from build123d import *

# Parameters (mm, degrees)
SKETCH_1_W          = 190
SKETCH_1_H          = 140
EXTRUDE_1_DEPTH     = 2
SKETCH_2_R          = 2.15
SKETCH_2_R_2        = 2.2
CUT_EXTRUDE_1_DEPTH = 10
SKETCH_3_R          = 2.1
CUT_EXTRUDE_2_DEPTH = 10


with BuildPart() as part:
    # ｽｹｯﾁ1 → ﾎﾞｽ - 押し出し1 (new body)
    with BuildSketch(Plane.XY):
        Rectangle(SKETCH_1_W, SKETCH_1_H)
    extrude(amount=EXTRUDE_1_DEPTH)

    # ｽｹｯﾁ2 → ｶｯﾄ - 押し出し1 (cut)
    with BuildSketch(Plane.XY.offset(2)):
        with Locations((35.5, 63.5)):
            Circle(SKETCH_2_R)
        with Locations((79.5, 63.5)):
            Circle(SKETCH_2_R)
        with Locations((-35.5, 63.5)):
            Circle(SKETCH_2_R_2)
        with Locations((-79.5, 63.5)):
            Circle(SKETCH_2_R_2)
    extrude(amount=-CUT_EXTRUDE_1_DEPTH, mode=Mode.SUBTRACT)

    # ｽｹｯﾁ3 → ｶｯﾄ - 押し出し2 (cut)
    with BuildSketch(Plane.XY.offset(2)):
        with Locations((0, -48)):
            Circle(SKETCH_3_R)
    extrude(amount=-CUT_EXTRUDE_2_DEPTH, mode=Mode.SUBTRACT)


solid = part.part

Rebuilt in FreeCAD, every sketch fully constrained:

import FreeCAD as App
import Part
import Sketcher
from FreeCAD import Vector


def add_polygon(sketch, points):
    """Adds a closed chain of lines whose ends are joined by coincident constraints."""
    first, n = sketch.GeometryCount, len(points)
    for a, b in zip(points, points[1:] + points[:1]):
        sketch.addGeometry(Part.LineSegment(App.Vector(*a, 0), App.Vector(*b, 0)), False)
    for i in range(n):
        sketch.addConstraint(Sketcher.Constraint("Coincident", first + i, 2, first + (i + 1) % n, 1))

doc = App.newDocument("Part")
params = doc.addObject("Spreadsheet::Sheet", "Params")
for row, (alias, value) in enumerate([
    ("sketch1_width", "190 mm"),
    ("sketch1_height", "140 mm"),
    ("pad1_length", "2 mm"),
    ("sketch2_diameter", "4.3 mm"),
    ("sketch2_diameter2", "4.4 mm"),
    ("pocket1_length", "10 mm"),
    ("sketch3_diameter", "4.2 mm"),
    ("pocket2_length", "10 mm"),
], start=1):
    params.set(f"A{row}", alias)
    params.set(f"B{row}", "=" + value)
    params.setAlias(f"B{row}", alias)

body = doc.addObject("PartDesign::Body", "Body")

sketch1 = body.newObject("Sketcher::SketchObject", "Sketch")
sketch1.AttachmentSupport = (doc.getObject("XY_Plane"), [""])
sketch1.MapMode = "FlatFace"
add_polygon(sketch1, [(-95, 70), (-95, -70), (95, -70), (95, 70)])
sketch1.addConstraint([
    Sketcher.Constraint("Vertical", 0),
    Sketcher.Constraint("Horizontal", 1),
    Sketcher.Constraint("Vertical", 2),
    Sketcher.Constraint("Horizontal", 3),
    Sketcher.Constraint("Symmetric", 0, 2, 2, 2, -1, 1),
    Sketcher.Constraint("DistanceX", 1, 1, 1, 2, 190.0),
    Sketcher.Constraint("DistanceY", 0, 2, 0, 1, 140.0),
])
sketch1.setExpression("Constraints[9]", "Params.sketch1_width")
sketch1.setExpression("Constraints[10]", "Params.sketch1_height")
pad1 = body.newObject("PartDesign::Pad", "Pad")
pad1.Profile = sketch1
pad1.setExpression("Length", "Params.pad1_length")

sketch2 = body.newObject("Sketcher::SketchObject", "Sketch001")
sketch2.AttachmentSupport = (doc.getObject("XY_Plane"), [""])
sketch2.MapMode = "FlatFace"
sketch2.AttachmentOffset = App.Placement(Vector(0, 0, 2), App.Rotation())
sketch2.addGeometry([
    Part.Circle(Vector(35.5, 63.5, 0), Vector(0, 0, 1), 2.1),
    Part.Circle(Vector(79.5, 63.5, 0), Vector(0, 0, 1), 2.1),
    Part.Circle(Vector(-35.5, 63.5, 0), Vector(0, 0, 1), 2.2),
    Part.Circle(Vector(-79.5, 63.5, 0), Vector(0, 0, 1), 2.2),
], False)
sketch2.addConstraint([
    Sketcher.Constraint("Equal", 0, 1),
    Sketcher.Constraint("Equal", 2, 3),
    Sketcher.Constraint("Symmetric", 0, 3, 2, 3, -2),
    Sketcher.Constraint("Symmetric", 1, 3, 3, 3, -2),
    Sketcher.Constraint("Horizontal", 0, 3, 1, 3),
    Sketcher.Constraint("Diameter", 0, 4.3),
    Sketcher.Constraint("Diameter", 2, 4.4),
    Sketcher.Constraint("DistanceX", 0, 3, 1, 3, 44.0),
    Sketcher.Constraint("DistanceX", 2, 3, 0, 3, 71.0),
    Sketcher.Constraint("DistanceY", -1, 1, 0, 3, 63.5),
])
sketch2.setExpression("Constraints[5]", "Params.sketch2_diameter")
sketch2.setExpression("Constraints[6]", "Params.sketch2_diameter2")
pocket1 = body.newObject("PartDesign::Pocket", "Pocket")
pocket1.Profile = sketch2
pocket1.setExpression("Length", "Params.pocket1_length")

sketch3 = body.newObject("Sketcher::SketchObject", "Sketch002")
sketch3.AttachmentSupport = (doc.getObject("XY_Plane"), [""])
sketch3.MapMode = "FlatFace"
sketch3.AttachmentOffset = App.Placement(Vector(0, 0, 2), App.Rotation())
sketch3.addGeometry(Part.Circle(Vector(0, -48, 0), Vector(0, 0, 1), 2.1), False)
sketch3.addConstraint([
    Sketcher.Constraint("PointOnObject", 0, 3, -2),
    Sketcher.Constraint("Diameter", 0, 4.2),
    Sketcher.Constraint("DistanceY", 0, 3, -1, 1, 48.0),
])
sketch3.setExpression("Constraints[1]", "Params.sketch3_diameter")
pocket2 = body.newObject("PartDesign::Pocket", "Pocket001")
pocket2.Profile = sketch3
pocket2.setExpression("Length", "Params.pocket2_length")

doc.recompute()
